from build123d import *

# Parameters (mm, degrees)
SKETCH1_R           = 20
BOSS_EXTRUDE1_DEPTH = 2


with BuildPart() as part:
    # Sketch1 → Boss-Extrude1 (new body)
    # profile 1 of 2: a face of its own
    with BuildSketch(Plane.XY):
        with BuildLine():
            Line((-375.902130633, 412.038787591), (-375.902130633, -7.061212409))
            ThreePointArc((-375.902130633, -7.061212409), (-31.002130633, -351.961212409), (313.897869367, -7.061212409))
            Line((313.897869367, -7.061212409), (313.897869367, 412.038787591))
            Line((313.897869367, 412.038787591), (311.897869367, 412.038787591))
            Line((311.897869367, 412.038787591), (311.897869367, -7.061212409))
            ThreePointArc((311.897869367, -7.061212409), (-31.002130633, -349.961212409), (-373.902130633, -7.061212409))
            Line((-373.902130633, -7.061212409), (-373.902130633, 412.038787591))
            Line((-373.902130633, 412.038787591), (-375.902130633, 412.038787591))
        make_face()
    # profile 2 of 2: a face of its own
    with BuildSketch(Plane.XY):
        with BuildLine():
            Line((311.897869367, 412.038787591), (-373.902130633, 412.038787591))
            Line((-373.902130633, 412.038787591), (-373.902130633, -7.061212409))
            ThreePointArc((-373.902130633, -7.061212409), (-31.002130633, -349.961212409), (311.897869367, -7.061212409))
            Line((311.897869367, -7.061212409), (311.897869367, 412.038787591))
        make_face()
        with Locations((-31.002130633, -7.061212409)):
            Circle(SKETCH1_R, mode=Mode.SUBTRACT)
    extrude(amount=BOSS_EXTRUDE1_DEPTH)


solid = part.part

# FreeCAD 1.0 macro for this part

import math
import FreeCAD as App
import Part
import Sketcher

V = App.Vector
Q = App.Units.Quantity

doc = App.newDocument("Part")
body = doc.addObject("PartDesign::Body", "Body")

sketch1 = doc.addObject("Sketcher::SketchObject", "Sketch")
body.addObject(sketch1)
sketch1.AttachmentSupport = (doc.XY_Plane, [""])
sketch1.MapMode = "FlatFace"
sketch1.addGeometry([
    Part.LineSegment(V(-375.902131, 412.038788, 0), V(-375.902131, -7.061212, 0)),
    Part.ArcOfCircle(Part.Circle(V(-31.002131, -7.061212, 0), V(0, 0, 1), 344.9), math.radians(180), math.radians(360)),
    Part.LineSegment(V(313.897869, -7.061212, 0), V(313.897869, 412.038788, 0)),
    Part.LineSegment(V(313.897869, 412.038788, 0), V(-375.902131, 412.038788, 0)),
    Part.Circle(V(-31.002131, -7.061212, 0), V(0, 0, 1), 20),
], False)
sketch1.addConstraint([
    Sketcher.Constraint("Tangent", 0, 2, 1, 1),
    Sketcher.Constraint("Tangent", 1, 2, 2, 1),
    Sketcher.Constraint("Coincident", 2, 2, 3, 1),
    Sketcher.Constraint("Coincident", 3, 2, 0, 1),
    Sketcher.Constraint("Vertical", 0),
    Sketcher.Constraint("Vertical", 2),
    Sketcher.Constraint("Horizontal", 3),
    Sketcher.Constraint("Coincident", 4, 3, 1, 3),
    Sketcher.Constraint("Diameter", 4, Q("40 mm")),
    Sketcher.Constraint("Radius", 1, Q("344.9 mm")),
    Sketcher.Constraint("DistanceY", 0, 2, 0, 1, Q("419.1 mm")),
    Sketcher.Constraint("DistanceX", 1, 3, -1, 1, Q("31.002131 mm")),
    Sketcher.Constraint("DistanceY", 1, 3, -1, 1, Q("7.061212 mm")),
])
pad1 = doc.addObject("PartDesign::Pad", "Pad")
body.addObject(pad1)
pad1.Profile = sketch1
pad1.Length = 2

doc.recompute()
